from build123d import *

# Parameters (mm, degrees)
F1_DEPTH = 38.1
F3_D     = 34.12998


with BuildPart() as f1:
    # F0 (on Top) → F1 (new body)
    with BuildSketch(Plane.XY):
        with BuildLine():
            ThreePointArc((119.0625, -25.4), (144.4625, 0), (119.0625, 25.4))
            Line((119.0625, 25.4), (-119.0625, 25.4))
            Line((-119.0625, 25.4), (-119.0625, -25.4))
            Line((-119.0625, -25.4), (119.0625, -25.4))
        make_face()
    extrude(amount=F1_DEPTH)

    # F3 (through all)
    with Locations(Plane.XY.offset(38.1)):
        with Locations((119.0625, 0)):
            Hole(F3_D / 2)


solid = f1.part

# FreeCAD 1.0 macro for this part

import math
import FreeCAD as App
import Part
import Sketcher

V = App.Vector
Q = App.Units.Quantity

doc = App.newDocument("Part")
body = doc.addObject("PartDesign::Body", "Body")

# Sketch on XY plane
sketch1 = doc.addObject("Sketcher::SketchObject", "Sketch")
body.addObject(sketch1)
sketch1.AttachmentSupport = (doc.XY_Plane, [""])
sketch1.MapMode = "FlatFace"
sketch1.addGeometry([
    Part.ArcOfCircle(Part.Circle(V(119.0625, 0, 0), V(0, 0, 1), 25.4), math.radians(-90), math.radians(90)),
    Part.LineSegment(V(119.0625, 25.4, 0), V(-119.0625, 25.4, 0)),
    Part.LineSegment(V(-119.0625, 25.4, 0), V(-119.0625, -25.4, 0)),
    Part.LineSegment(V(-119.0625, -25.4, 0), V(119.0625, -25.4, 0)),
], False)
sketch1.addConstraint([
    Sketcher.Constraint("Tangent", 0, 2, 1, 1),
    Sketcher.Constraint("Coincident", 1, 2, 2, 1),
    Sketcher.Constraint("Coincident", 2, 2, 3, 1),
    Sketcher.Constraint("Tangent", 3, 2, 0, 1),
    Sketcher.Constraint("Horizontal", 1),
    Sketcher.Constraint("Vertical", 2),
    Sketcher.Constraint("Horizontal", 3),
    Sketcher.Constraint("Symmetric", 0, 2, 2, 2, -1, 1),
    Sketcher.Constraint("Radius", 0, Q("1 in")),
    Sketcher.Constraint("DistanceX", 1, 2, 1, 1, Q("9.375 in")),
])
pad1 = doc.addObject("PartDesign::Pad", "Pad")
body.addObject(pad1)
pad1.Profile = sketch1
pad1.Length = Q("1.5 in")

# Sketch on XY plane
sketch2 = doc.addObject("Sketcher::SketchObject", "Sketch001")
body.addObject(sketch2)
sketch2.AttachmentSupport = (doc.XY_Plane, [""])
sketch2.MapMode = "FlatFace"
sketch2.AttachmentOffset = App.Placement(V(0, 0, 1.5 * 25.4), App.Rotation())
sketch2.addGeometry(Part.Circle(V(119.0625, 0, 0), V(0, 0, 1), 17.06499), False)
sketch2.addConstraint([
    Sketcher.Constraint("PointOnObject", 0, 3, -1),
    Sketcher.Constraint("Diameter", 0, Q("1.3437 in")),
    Sketcher.Constraint("DistanceX", -1, 1, 0, 3, Q("4.6875 in")),
])
doc.recompute()
hole = doc.addObject("PartDesign::Hole", "Hole")
body.addObject(hole)
hole.Profile = sketch2
hole.ThreadType = "None"
hole.Diameter = Q("1.3437 in")
hole.DepthType = "ThroughAll"

doc.recompute()
